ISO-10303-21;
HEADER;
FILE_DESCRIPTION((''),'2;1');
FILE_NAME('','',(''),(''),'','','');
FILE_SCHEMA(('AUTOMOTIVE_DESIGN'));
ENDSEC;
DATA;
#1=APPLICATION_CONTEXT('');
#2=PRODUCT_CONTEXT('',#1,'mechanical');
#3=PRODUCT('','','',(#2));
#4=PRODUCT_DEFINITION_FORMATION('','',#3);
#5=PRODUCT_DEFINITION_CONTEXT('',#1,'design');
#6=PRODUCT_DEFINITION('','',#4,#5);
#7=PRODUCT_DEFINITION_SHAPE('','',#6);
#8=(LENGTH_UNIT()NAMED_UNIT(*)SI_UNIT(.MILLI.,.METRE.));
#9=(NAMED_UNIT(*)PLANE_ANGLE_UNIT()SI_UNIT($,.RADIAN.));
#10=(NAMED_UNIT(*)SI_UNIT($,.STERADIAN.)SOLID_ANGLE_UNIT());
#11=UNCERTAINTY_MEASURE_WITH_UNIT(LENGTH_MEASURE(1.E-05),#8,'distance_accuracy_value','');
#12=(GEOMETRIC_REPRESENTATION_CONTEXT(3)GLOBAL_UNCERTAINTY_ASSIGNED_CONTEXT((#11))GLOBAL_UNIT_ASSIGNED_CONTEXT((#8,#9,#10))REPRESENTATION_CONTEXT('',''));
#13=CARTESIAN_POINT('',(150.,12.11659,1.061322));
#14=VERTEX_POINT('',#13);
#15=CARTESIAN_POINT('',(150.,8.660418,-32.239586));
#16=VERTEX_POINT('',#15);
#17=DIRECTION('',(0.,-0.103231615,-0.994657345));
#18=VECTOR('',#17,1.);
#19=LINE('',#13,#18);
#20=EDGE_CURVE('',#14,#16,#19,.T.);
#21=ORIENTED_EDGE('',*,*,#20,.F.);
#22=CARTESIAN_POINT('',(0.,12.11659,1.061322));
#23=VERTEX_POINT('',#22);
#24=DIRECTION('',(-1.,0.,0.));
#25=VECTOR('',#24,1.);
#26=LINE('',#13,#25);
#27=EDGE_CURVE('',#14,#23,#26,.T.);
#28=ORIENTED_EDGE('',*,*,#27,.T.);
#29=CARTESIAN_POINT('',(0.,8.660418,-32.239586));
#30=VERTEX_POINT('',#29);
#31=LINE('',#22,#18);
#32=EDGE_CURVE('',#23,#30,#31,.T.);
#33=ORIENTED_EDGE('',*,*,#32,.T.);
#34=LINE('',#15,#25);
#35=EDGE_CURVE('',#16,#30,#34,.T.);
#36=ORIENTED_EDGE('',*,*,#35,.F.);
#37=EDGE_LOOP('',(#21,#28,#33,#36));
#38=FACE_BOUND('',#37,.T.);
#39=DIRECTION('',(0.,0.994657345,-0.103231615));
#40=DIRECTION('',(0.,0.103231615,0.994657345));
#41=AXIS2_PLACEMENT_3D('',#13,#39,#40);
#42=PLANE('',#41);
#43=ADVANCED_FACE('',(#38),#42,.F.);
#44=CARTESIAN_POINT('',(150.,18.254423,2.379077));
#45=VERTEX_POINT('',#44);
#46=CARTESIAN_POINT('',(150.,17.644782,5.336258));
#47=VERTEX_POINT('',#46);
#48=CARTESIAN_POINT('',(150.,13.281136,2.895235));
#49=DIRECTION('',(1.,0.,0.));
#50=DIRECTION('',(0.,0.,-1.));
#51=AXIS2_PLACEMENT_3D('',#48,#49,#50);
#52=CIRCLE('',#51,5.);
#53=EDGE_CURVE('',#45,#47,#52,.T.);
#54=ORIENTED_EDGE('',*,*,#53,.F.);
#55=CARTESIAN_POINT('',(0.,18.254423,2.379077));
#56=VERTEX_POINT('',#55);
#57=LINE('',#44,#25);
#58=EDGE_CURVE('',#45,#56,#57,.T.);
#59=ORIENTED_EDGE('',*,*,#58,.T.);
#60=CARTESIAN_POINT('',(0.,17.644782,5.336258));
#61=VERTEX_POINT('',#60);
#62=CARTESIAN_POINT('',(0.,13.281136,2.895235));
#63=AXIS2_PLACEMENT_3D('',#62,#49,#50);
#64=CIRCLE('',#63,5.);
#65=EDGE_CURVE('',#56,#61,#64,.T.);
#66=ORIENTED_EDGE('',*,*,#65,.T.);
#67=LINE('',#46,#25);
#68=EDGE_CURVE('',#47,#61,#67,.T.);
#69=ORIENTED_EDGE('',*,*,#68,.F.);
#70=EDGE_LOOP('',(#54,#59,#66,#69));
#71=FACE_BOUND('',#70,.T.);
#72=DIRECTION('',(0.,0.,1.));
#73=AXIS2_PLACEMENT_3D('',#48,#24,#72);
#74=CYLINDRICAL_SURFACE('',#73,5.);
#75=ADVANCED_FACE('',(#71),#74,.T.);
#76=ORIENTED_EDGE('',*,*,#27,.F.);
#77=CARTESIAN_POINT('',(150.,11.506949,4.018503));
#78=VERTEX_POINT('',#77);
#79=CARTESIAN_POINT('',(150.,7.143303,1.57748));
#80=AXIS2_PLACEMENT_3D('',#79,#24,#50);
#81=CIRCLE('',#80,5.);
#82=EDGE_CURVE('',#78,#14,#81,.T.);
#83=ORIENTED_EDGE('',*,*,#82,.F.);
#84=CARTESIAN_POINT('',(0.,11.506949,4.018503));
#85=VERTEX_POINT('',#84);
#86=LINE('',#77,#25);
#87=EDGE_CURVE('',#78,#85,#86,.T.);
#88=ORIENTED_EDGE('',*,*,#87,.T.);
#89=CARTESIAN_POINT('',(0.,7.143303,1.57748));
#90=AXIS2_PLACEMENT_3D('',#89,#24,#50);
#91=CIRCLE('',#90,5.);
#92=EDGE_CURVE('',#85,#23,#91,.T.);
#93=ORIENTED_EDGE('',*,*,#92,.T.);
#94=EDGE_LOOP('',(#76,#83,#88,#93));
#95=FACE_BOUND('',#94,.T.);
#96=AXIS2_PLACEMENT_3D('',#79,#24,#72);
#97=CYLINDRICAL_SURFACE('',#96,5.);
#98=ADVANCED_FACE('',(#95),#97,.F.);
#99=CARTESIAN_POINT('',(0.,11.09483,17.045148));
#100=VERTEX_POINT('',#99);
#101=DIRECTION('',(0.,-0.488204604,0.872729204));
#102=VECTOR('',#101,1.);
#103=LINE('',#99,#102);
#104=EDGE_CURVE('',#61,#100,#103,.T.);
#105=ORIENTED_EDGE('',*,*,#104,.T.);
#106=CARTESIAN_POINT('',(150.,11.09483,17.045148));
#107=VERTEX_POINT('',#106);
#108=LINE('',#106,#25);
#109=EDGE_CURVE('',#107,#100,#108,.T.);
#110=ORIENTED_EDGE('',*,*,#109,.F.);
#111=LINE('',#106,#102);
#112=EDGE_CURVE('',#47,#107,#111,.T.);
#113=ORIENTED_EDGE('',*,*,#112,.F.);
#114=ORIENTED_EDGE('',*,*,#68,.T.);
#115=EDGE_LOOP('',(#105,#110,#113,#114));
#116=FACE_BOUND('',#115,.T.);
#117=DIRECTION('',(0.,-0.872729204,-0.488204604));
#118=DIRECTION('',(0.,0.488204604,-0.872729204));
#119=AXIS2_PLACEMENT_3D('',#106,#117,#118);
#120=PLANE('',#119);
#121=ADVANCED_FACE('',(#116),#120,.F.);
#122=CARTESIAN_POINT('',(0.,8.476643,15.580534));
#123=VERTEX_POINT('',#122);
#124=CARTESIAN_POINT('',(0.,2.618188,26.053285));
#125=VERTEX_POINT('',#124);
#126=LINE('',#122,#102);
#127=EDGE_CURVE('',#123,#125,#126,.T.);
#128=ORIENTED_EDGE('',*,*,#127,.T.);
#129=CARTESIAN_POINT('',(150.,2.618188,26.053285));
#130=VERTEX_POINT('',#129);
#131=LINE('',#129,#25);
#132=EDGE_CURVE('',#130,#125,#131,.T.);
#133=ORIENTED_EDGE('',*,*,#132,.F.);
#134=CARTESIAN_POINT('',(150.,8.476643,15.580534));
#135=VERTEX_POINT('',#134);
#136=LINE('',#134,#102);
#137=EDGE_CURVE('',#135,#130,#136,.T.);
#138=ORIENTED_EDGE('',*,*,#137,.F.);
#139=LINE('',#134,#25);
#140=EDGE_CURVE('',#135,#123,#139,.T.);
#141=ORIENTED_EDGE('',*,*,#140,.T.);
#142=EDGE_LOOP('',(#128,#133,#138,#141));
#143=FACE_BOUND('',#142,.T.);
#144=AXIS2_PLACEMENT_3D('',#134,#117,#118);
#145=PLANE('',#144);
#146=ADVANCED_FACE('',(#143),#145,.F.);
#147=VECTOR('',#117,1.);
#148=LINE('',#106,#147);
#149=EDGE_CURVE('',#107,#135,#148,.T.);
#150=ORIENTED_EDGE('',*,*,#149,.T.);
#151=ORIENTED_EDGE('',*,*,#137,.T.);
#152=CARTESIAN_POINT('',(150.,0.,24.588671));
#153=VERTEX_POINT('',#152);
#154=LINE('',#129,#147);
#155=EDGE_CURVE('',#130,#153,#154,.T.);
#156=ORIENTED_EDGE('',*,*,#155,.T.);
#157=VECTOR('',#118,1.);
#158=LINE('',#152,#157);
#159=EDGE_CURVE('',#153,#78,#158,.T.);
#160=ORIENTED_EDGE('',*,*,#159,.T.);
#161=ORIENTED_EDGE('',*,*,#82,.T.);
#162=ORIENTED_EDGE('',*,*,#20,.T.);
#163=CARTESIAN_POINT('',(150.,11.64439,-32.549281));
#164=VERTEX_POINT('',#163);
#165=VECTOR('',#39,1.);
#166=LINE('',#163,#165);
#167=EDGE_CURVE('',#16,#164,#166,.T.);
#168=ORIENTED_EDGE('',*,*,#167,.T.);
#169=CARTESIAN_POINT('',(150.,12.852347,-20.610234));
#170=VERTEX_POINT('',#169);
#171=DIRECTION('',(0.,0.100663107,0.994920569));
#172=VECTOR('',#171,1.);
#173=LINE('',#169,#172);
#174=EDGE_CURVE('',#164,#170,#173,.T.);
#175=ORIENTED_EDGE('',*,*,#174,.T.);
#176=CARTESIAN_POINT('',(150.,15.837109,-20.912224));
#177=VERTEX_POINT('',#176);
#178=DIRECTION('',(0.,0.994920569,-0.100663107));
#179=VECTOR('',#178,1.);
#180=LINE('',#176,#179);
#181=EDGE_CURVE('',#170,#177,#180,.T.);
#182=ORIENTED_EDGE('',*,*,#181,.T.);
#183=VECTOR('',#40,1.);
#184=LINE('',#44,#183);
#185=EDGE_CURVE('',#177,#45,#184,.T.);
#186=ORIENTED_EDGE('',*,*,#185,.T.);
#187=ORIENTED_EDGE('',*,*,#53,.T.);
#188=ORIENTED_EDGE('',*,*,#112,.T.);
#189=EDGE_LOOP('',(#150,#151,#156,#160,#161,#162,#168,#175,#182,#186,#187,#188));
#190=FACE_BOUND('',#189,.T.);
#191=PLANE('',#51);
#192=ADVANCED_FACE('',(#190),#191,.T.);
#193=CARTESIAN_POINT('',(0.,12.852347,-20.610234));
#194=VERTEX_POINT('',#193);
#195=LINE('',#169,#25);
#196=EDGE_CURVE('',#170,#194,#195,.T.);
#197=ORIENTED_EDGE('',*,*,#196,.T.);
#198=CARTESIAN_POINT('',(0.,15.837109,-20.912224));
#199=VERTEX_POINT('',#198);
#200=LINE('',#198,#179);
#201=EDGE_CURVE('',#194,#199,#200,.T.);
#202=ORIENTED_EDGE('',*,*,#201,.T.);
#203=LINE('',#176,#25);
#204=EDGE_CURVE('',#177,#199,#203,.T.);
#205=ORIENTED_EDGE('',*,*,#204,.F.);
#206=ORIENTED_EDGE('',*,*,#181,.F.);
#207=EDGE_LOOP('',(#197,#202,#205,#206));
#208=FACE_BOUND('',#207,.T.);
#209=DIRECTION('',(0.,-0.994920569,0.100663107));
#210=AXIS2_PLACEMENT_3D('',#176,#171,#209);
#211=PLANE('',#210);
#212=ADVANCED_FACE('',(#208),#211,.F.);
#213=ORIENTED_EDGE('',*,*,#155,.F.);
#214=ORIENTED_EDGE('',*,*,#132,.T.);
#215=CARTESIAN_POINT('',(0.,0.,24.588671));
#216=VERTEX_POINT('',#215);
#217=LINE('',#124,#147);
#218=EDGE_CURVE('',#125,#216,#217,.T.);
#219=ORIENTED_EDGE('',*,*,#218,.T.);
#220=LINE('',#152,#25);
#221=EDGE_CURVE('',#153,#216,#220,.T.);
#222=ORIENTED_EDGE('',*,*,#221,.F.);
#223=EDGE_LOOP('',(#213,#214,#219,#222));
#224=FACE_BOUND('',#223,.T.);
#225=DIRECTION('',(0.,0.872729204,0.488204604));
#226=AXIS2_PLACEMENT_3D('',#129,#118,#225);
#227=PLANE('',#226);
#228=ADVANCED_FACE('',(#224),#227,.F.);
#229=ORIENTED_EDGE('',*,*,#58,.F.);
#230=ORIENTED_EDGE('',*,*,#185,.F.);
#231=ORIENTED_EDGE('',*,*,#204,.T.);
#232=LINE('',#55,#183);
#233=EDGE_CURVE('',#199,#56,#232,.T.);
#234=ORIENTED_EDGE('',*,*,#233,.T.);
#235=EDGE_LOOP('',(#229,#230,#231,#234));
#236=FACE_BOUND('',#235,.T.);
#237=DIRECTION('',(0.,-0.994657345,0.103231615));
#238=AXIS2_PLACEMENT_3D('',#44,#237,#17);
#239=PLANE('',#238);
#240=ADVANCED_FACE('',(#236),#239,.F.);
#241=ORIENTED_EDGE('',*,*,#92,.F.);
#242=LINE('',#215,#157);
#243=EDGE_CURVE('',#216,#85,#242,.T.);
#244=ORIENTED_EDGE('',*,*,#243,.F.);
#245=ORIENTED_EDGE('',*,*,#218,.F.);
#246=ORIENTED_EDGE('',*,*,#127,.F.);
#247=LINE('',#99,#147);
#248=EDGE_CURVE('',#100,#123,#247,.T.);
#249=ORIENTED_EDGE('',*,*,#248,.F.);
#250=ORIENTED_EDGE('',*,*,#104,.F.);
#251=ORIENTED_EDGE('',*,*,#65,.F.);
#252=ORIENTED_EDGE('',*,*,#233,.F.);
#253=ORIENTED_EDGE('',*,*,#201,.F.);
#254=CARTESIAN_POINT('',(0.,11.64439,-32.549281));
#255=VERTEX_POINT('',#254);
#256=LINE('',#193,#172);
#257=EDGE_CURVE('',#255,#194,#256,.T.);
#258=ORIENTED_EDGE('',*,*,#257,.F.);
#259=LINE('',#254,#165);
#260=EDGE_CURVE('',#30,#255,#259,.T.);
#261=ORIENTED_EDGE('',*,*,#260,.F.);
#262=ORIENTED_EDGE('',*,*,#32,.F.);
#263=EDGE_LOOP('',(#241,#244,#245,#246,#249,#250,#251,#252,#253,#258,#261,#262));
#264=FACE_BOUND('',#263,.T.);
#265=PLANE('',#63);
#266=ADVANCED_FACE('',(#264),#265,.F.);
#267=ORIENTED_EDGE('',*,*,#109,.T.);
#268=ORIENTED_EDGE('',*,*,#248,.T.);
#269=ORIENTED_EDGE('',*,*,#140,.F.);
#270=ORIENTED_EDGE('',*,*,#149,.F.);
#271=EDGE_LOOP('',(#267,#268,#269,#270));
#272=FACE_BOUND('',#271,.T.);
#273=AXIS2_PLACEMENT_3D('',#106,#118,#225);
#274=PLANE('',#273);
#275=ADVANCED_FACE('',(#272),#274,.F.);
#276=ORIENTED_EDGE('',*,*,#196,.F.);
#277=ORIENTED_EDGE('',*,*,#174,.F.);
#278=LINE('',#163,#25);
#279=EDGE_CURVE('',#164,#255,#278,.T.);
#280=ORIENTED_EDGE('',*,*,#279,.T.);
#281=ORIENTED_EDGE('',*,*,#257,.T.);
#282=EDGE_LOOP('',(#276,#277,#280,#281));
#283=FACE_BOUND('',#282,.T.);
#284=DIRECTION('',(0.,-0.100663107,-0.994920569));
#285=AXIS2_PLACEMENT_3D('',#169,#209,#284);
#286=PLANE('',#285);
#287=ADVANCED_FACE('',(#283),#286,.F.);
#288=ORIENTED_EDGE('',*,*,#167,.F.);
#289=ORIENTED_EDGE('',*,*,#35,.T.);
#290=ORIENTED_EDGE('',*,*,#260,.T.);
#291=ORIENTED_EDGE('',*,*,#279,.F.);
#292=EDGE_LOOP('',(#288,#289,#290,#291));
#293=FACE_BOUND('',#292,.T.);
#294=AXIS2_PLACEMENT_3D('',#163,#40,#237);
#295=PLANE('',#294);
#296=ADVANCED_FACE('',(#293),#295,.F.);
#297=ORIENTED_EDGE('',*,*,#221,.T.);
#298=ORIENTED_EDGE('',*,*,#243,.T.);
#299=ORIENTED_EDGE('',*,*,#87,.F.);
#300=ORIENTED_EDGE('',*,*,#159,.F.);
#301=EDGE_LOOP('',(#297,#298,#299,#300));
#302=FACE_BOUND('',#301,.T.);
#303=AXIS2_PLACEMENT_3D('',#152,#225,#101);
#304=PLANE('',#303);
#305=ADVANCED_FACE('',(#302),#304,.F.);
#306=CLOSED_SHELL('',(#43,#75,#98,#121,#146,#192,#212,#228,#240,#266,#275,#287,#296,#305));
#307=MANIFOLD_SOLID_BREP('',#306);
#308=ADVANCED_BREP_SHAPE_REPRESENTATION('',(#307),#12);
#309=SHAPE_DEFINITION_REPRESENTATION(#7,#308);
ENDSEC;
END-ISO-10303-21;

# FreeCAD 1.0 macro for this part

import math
import FreeCAD as App
import Part
import Sketcher

V = App.Vector

doc = App.newDocument("Part")
params = doc.addObject("Spreadsheet::Sheet", "Params")
for row, (alias, value) in enumerate([
    ("sketch1_radius", "5 mm"),
    ("sketch1_length", "3 mm"),
    ("sketch1_length2", "12 mm"),
    ("pad1_length", "150 mm"),
], start=1):
    params.set(f"A{row}", alias)
    params.set(f"B{row}", "=" + value)
    params.setAlias(f"B{row}", alias)

body = doc.addObject("PartDesign::Body", "Body")

sketch1 = body.newObject("Sketcher::SketchObject", "Sketch")
sketch1.AttachmentSupport = (doc.getObject("YZ_Plane"), [""])
sketch1.MapMode = "FlatFace"
sketch1.addGeometry(Part.LineSegment(V(11.1, 17, 0), V(8.5, 15.6, 0)), False)
sketch1.addGeometry(Part.LineSegment(V(8.5, 15.6, 0), V(2.6, 26.1, 0)), False)
sketch1.addGeometry(Part.LineSegment(V(2.6, 26.1, 0), V(0, 24.6, 0)), False)
sketch1.addGeometry(Part.LineSegment(V(0, 24.6, 0), V(11.5, 4, 0)), False)
sketch1.addGeometry(Part.ArcOfCircle(Part.Circle(V(7.1, 1.6, 0), V(0, 0, 1), 5), math.radians(-6), math.radians(29)), False)
sketch1.addGeometry(Part.LineSegment(V(12.1, 1.1, 0), V(8.7, -32.2, 0)), False)
sketch1.addGeometry(Part.LineSegment(V(8.7, -32.2, 0), V(11.6, -32.5, 0)), False)
sketch1.addGeometry(Part.LineSegment(V(11.6, -32.5, 0), V(12.9, -20.6, 0)), False)
sketch1.addGeometry(Part.LineSegment(V(12.9, -20.6, 0), V(15.8, -20.9, 0)), False)
sketch1.addGeometry(Part.LineSegment(V(15.8, -20.9, 0), V(18.3, 2.4, 0)), False)
sketch1.addGeometry(Part.ArcOfCircle(Part.Circle(V(13.3, 2.9, 0), V(0, 0, 1), 5), math.radians(-6), math.radians(29)), False)
sketch1.addGeometry(Part.LineSegment(V(17.6, 5.3, 0), V(11.1, 17, 0)), False)
sketch1.addConstraint(Sketcher.Constraint("Coincident", 0, 2, 1, 1))
sketch1.addConstraint(Sketcher.Constraint("Coincident", 1, 2, 2, 1))
sketch1.addConstraint(Sketcher.Constraint("Coincident", 2, 2, 3, 1))
sketch1.addConstraint(Sketcher.Constraint("Tangent", 3, 2, 4, 2))
sketch1.addConstraint(Sketcher.Constraint("Tangent", 4, 1, 5, 1))
sketch1.addConstraint(Sketcher.Constraint("Coincident", 5, 2, 6, 1))
sketch1.addConstraint(Sketcher.Constraint("Coincident", 6, 2, 7, 1))
sketch1.addConstraint(Sketcher.Constraint("Coincident", 7, 2, 8, 1))
sketch1.addConstraint(Sketcher.Constraint("Coincident", 8, 2, 9, 1))
sketch1.addConstraint(Sketcher.Constraint("Tangent", 9, 2, 10, 1))
sketch1.addConstraint(Sketcher.Constraint("Tangent", 10, 2, 11, 1))
sketch1.addConstraint(Sketcher.Constraint("Coincident", 11, 2, 0, 1))
sketch1.addConstraint(Sketcher.Constraint("Equal", 4, 10))
sketch1.addConstraint(Sketcher.Constraint("PointOnObject", 2, 2, -2))
sketch1.addConstraint(Sketcher.Constraint("Perpendicular", 0, 1))
sketch1.addConstraint(Sketcher.Constraint("Perpendicular", 1, 2))
sketch1.addConstraint(Sketcher.Constraint("Perpendicular", 2, 3))
sketch1.addConstraint(Sketcher.Constraint("Perpendicular", 5, 6))
sketch1.addConstraint(Sketcher.Constraint("Perpendicular", 7, 8))
sketch1.addConstraint(Sketcher.Constraint("Perpendicular", 6, 9))
sketch1.addConstraint(Sketcher.Constraint("Parallel", 3, 11))
sketch1.addConstraint(Sketcher.Constraint("Equal", 0, 2))
sketch1.addConstraint(Sketcher.Constraint("Equal", 2, 6))
sketch1.addConstraint(Sketcher.Constraint("Equal", 1, 7))
sketch1.addConstraint(Sketcher.Constraint("Equal", 6, 8))
sketch1.addConstraint(Sketcher.Constraint("Radius", 4, 5.0))
sketch1.addConstraint(Sketcher.Constraint("Distance", 0, 3.0))
sketch1.addConstraint(Sketcher.Constraint("Distance", 1, 12.0))
sketch1.addConstraint(Sketcher.Constraint("DistanceY", 10, 3, 0, 2, 12.685299))
sketch1.addConstraint(Sketcher.Constraint("DistanceX", 6, 2, 4, 1, 0.4722))
sketch1.addConstraint(Sketcher.Constraint("Distance", 3, 23.569932))
sketch1.addConstraint(Sketcher.Constraint("Distance", 5, 33.479779))
sketch1.addConstraint(Sketcher.Constraint("DistanceY", -1, 1, 4, 3, 1.57748))
sketch1.addConstraint(Sketcher.Constraint("DistanceY", -1, 1, 2, 2, 24.588671))
sketch1.setExpression("Constraints[25]", "Params.sketch1_radius")
sketch1.setExpression("Constraints[26]", "Params.sketch1_length")
sketch1.setExpression("Constraints[27]", "Params.sketch1_length2")
pad1 = body.newObject("PartDesign::Pad", "Pad")
pad1.Profile = sketch1
pad1.setExpression("Length", "Params.pad1_length")

doc.recompute()
